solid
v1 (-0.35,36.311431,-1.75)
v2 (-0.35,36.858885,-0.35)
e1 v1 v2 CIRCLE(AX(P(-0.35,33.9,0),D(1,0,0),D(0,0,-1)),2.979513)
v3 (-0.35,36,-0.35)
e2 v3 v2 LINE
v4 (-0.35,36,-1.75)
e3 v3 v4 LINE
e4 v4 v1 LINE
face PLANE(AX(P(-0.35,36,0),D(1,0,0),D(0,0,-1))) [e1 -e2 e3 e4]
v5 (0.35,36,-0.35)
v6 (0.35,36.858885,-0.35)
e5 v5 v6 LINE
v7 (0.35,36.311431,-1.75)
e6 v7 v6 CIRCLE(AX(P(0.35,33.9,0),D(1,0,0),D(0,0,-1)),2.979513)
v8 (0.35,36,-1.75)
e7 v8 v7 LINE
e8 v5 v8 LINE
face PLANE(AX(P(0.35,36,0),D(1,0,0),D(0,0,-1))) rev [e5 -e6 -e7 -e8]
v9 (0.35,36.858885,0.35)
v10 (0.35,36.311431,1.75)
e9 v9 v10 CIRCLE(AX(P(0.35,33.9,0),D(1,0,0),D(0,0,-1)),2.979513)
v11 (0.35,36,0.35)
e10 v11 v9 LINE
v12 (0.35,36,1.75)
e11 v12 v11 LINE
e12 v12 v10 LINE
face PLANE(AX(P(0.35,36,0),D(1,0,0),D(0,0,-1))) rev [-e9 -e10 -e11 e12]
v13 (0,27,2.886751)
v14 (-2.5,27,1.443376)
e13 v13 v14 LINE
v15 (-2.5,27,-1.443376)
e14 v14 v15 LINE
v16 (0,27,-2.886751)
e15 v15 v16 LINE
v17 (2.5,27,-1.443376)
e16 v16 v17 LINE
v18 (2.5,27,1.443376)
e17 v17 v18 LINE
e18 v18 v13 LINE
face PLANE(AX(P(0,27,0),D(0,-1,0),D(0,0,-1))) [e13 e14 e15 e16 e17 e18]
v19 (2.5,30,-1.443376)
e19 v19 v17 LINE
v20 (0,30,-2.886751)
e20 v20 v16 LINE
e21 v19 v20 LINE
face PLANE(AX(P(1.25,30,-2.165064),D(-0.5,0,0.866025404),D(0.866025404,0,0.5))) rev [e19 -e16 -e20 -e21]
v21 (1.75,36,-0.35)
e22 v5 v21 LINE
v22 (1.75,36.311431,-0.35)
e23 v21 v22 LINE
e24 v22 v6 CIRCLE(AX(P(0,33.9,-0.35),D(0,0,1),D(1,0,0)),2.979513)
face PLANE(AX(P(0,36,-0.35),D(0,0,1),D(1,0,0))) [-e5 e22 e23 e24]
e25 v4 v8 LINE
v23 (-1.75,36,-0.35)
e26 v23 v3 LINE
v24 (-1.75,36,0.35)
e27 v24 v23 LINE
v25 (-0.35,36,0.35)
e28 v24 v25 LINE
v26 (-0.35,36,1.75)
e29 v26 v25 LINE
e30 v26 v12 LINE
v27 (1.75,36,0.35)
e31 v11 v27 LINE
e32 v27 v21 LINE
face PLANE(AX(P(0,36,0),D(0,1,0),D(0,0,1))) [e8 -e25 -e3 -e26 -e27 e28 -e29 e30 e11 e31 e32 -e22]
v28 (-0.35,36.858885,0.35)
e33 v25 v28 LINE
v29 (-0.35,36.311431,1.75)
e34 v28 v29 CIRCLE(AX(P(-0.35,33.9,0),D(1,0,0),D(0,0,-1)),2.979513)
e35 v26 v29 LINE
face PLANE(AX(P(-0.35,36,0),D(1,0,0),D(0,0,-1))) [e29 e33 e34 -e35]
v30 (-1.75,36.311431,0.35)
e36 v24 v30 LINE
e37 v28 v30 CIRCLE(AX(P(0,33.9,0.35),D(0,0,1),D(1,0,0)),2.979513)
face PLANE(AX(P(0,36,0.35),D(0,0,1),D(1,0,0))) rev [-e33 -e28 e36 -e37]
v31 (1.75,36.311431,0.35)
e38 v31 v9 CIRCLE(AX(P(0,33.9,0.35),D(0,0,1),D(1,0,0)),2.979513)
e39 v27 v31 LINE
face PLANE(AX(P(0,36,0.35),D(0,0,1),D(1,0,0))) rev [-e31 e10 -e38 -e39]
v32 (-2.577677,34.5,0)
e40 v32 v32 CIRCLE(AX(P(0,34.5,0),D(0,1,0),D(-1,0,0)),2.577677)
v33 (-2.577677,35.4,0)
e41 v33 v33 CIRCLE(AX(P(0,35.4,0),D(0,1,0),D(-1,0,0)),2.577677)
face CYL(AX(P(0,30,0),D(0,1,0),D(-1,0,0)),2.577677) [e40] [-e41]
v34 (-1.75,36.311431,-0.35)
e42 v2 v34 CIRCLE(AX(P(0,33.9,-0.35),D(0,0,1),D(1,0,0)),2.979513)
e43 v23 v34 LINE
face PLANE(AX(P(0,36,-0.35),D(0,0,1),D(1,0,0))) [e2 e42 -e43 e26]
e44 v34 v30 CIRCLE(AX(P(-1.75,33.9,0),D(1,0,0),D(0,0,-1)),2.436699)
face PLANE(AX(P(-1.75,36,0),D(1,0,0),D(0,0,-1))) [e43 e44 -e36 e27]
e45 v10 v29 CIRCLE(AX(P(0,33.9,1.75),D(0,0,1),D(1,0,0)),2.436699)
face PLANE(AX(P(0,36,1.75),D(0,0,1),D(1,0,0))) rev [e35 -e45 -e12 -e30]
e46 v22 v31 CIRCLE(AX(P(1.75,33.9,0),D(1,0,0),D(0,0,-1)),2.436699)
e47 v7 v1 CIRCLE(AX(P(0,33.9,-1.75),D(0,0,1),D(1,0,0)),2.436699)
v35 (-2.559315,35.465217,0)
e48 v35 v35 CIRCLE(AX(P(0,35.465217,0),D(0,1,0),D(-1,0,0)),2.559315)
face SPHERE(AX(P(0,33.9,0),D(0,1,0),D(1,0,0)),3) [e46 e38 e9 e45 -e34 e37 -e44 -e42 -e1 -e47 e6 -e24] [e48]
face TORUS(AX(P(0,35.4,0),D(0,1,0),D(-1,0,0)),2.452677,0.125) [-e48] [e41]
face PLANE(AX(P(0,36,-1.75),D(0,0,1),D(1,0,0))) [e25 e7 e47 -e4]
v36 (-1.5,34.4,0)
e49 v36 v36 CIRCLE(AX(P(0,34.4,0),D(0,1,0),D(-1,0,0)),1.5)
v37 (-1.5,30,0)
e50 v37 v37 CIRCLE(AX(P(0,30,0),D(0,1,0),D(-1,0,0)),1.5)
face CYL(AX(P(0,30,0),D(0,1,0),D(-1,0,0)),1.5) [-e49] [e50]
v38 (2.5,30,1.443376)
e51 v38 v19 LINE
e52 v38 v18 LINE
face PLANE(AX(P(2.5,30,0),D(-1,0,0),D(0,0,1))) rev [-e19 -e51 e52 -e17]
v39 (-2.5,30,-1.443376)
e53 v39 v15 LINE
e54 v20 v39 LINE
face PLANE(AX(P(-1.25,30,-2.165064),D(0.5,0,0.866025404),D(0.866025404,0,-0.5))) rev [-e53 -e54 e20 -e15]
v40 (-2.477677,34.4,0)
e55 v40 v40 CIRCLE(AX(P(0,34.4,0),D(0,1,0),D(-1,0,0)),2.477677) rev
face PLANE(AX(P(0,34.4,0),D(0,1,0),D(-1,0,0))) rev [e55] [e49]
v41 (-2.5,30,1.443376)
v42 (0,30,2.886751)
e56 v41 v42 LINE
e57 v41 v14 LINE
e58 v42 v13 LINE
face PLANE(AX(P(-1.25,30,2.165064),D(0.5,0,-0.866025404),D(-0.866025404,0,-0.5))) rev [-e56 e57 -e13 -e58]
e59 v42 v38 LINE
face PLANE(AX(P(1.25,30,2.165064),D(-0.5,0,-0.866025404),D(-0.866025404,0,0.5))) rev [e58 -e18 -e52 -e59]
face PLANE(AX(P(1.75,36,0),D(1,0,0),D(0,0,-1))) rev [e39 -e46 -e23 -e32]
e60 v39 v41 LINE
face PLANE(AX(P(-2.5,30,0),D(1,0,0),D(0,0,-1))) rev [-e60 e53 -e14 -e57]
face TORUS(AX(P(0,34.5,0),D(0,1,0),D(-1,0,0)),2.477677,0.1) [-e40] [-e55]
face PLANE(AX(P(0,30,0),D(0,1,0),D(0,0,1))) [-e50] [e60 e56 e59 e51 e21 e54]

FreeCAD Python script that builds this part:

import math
import FreeCAD as App
import Part
import Sketcher
from FreeCAD import Vector
Q = App.Units.Quantity


def edges_at(feature, points):
    """Names of the edges that pass closest to the given points."""
    edges = feature.Shape.Edges
    near = lambda p: min(range(len(edges)), key=lambda i: edges[i].distToShape(Part.Vertex(*p))[0])
    return sorted({f"Edge{near(p) + 1}" for p in points})

doc = App.newDocument("Part")
body = doc.addObject("PartDesign::Body", "Body")

# Sketch on XZ plane
sketch1 = doc.addObject("Sketcher::SketchObject", "Sketch")
body.addObject(sketch1)
sketch1.AttachmentSupport = (doc.XZ_Plane, [""])
sketch1.MapMode = "FlatFace"
sketch1.addGeometry(Part.LineSegment(Vector(0, 2.9, 0), Vector(2.5, 1.4, 0)), False)
sketch1.addGeometry(Part.LineSegment(Vector(2.5, 1.4, 0), Vector(2.5, -1.4, 0)), False)
sketch1.addGeometry(Part.LineSegment(Vector(2.5, -1.4, 0), Vector(0, -2.9, 0)), False)
sketch1.addGeometry(Part.LineSegment(Vector(0, -2.9, 0), Vector(-2.5, -1.4, 0)), False)
sketch1.addGeometry(Part.LineSegment(Vector(-2.5, -1.4, 0), Vector(-2.5, 1.4, 0)), False)
sketch1.addGeometry(Part.LineSegment(Vector(-2.5, 1.4, 0), Vector(0, 2.9, 0)), False)
sketch1.addConstraint(Sketcher.Constraint("Coincident", 0, 2, 1, 1))
sketch1.addConstraint(Sketcher.Constraint("Coincident", 1, 2, 2, 1))
sketch1.addConstraint(Sketcher.Constraint("Coincident", 2, 2, 3, 1))
sketch1.addConstraint(Sketcher.Constraint("Coincident", 3, 2, 4, 1))
sketch1.addConstraint(Sketcher.Constraint("Coincident", 4, 2, 5, 1))
sketch1.addConstraint(Sketcher.Constraint("Coincident", 5, 2, 0, 1))
sketch1.addConstraint(Sketcher.Constraint("Vertical", 1))
sketch1.addConstraint(Sketcher.Constraint("Vertical", 4))
sketch1.addConstraint(Sketcher.Constraint("Symmetric", 0, 2, 3, 2, -1, 1))
sketch1.addConstraint(Sketcher.Constraint("Symmetric", 2, 2, 5, 2, -1, 1))
sketch1.addConstraint(Sketcher.Constraint("PointOnObject", 2, 2, -2))
sketch1.addConstraint(Sketcher.Constraint("Parallel", 2, 5))
sketch1.addConstraint(Sketcher.Constraint("Horizontal", 1, 2, 3, 2))
sketch1.addConstraint(Sketcher.Constraint("Angle", 0, Q("-30 deg")))
sketch1.addConstraint(Sketcher.Constraint("DistanceX", 3, 2, 1, 2, Q("5 mm")))
sketch1.addConstraint(Sketcher.Constraint("DistanceY", 1, 2, 1, 1, Q("2.886751 mm")))
pad1 = doc.addObject("PartDesign::Pad", "Pad")
body.addObject(pad1)
pad1.Profile = sketch1
pad1.Length = 30
pad1.Reversed = True

# Sketch on XZ plane
sketch2 = doc.addObject("Sketcher::SketchObject", "Sketch001")
body.addObject(sketch2)
sketch2.AttachmentSupport = (doc.XZ_Plane, [""])
sketch2.MapMode = "FlatFace"
sketch2.addGeometry(Part.Circle(Vector(0, 0, 0), Vector(0, 0, 1), 1.5), False)
sketch2.addConstraint(Sketcher.Constraint("Coincident", 0, 3, -1, 1))
sketch2.addConstraint(Sketcher.Constraint("Diameter", 0, Q("3 mm")))
pad2 = doc.addObject("PartDesign::Pad", "Pad001")
body.addObject(pad2)
pad2.Profile = sketch2
pad2.Length = 6

# Sketch on XY plane
sketch3 = doc.addObject("Sketcher::SketchObject", "Sketch002")
body.addObject(sketch3)
sketch3.AttachmentSupport = (doc.XY_Plane, [""])
sketch3.MapMode = "FlatFace"
sketch3.addGeometry(Part.LineSegment(Vector(0, 36.9, 0), Vector(0, 30, 0)), False)
sketch3.addGeometry(Part.LineSegment(Vector(0, 30, 0), Vector(1.5, 30, 0)), False)
sketch3.addGeometry(Part.LineSegment(Vector(1.5, 30, 0), Vector(1.5, 34.4, 0)), False)
sketch3.addGeometry(Part.LineSegment(Vector(1.5, 34.4, 0), Vector(2.58, 34.4, 0)), False)
sketch3.addGeometry(Part.LineSegment(Vector(2.58, 34.4, 0), Vector(2.58, 35.4, 0)), False)
sketch3.addGeometry(Part.ArcOfCircle(Part.Circle(Vector(2.45, 35.4, 0), Vector(0, 0, 1), 0.13), math.radians(0), math.radians(31)), False)
sketch3.addGeometry(Part.ArcOfCircle(Part.Circle(Vector(0, 33.9, 0), Vector(0, 0, 1), 3), math.radians(31), math.radians(90)), False)
sketch3.addConstraint(Sketcher.Constraint("Coincident", 0, 2, 1, 1))
sketch3.addConstraint(Sketcher.Constraint("Coincident", 1, 2, 2, 1))
sketch3.addConstraint(Sketcher.Constraint("Coincident", 2, 2, 3, 1))
sketch3.addConstraint(Sketcher.Constraint("Coincident", 3, 2, 4, 1))
sketch3.addConstraint(Sketcher.Constraint("Tangent", 4, 2, 5, 1))
sketch3.addConstraint(Sketcher.Constraint("Tangent", 5, 2, 6, 1))
sketch3.addConstraint(Sketcher.Constraint("Coincident", 6, 2, 0, 1))
sketch3.addConstraint(Sketcher.Constraint("Vertical", 0))
sketch3.addConstraint(Sketcher.Constraint("Horizontal", 1))
sketch3.addConstraint(Sketcher.Constraint("Vertical", 2))
sketch3.addConstraint(Sketcher.Constraint("Horizontal", 3))
sketch3.addConstraint(Sketcher.Constraint("Vertical", 4))
sketch3.addConstraint(Sketcher.Constraint("PointOnObject", 6, 3, -2))
sketch3.addConstraint(Sketcher.Constraint("PointOnObject", 0, 2, -2))
sketch3.addConstraint(Sketcher.Constraint("Radius", 6, Q("3 mm")))
sketch3.addConstraint(Sketcher.Constraint("DistanceY", 4, 1, 4, 2, Q("1 mm")))
sketch3.addConstraint(Sketcher.Constraint("DistanceX", 1, 1, 1, 2, Q("1.5 mm")))
sketch3.addConstraint(Sketcher.Constraint("DistanceY", 0, 2, 0, 1, Q("6.9 mm")))
sketch3.addConstraint(Sketcher.Constraint("DistanceY", 2, 1, 2, 2, Q("4.4 mm")))
sketch3.addConstraint(Sketcher.Constraint("DistanceY", -1, 1, 0, 2, Q("30 mm")))
sketch3.addConstraint(Sketcher.Constraint("Radius", 5, Q("0.125 mm")))
revolution = doc.addObject("PartDesign::Revolution", "Revolution")
body.addObject(revolution)
revolution.Profile = sketch3
revolution.ReferenceAxis = (sketch3, ["V_Axis"])
revolution.Angle = 360

# Sketch on XZ plane
sketch4 = doc.addObject("Sketcher::SketchObject", "Sketch003")
body.addObject(sketch4)
sketch4.AttachmentSupport = (doc.XZ_Plane, [""])
sketch4.MapMode = "FlatFace"
sketch4.AttachmentOffset = App.Placement(Vector(0, 0, -40), App.Rotation())
sketch4.addGeometry(Part.LineSegment(Vector(-0.3, 0.3, 0), Vector(-0.3, 1.8, 0)), False)
sketch4.addGeometry(Part.LineSegment(Vector(-0.3, 1.8, 0), Vector(0.3, 1.8, 0)), False)
sketch4.addGeometry(Part.LineSegment(Vector(0.3, 1.8, 0), Vector(0.3, 0.3, 0)), False)
sketch4.addGeometry(Part.LineSegment(Vector(0.3, 0.3, 0), Vector(1.8, 0.3, 0)), False)
sketch4.addGeometry(Part.LineSegment(Vector(1.8, 0.3, 0), Vector(1.8, -0.3, 0)), False)
sketch4.addGeometry(Part.LineSegment(Vector(1.8, -0.3, 0), Vector(0.3, -0.3, 0)), False)
sketch4.addGeometry(Part.LineSegment(Vector(0.3, -0.3, 0), Vector(0.3, -1.8, 0)), False)
sketch4.addGeometry(Part.LineSegment(Vector(0.3, -1.8, 0), Vector(-0.3, -1.8, 0)), False)
sketch4.addGeometry(Part.LineSegment(Vector(-0.3, -1.8, 0), Vector(-0.3, -0.3, 0)), False)
sketch4.addGeometry(Part.LineSegment(Vector(-0.3, -0.3, 0), Vector(-1.8, -0.3, 0)), False)
sketch4.addGeometry(Part.LineSegment(Vector(-1.8, -0.3, 0), Vector(-1.8, 0.3, 0)), False)
sketch4.addGeometry(Part.LineSegment(Vector(-1.8, 0.3, 0), Vector(-0.3, 0.3, 0)), False)
sketch4.addConstraint(Sketcher.Constraint("Coincident", 0, 2, 1, 1))
sketch4.addConstraint(Sketcher.Constraint("Coincident", 1, 2, 2, 1))
sketch4.addConstraint(Sketcher.Constraint("Coincident", 2, 2, 3, 1))
sketch4.addConstraint(Sketcher.Constraint("Coincident", 3, 2, 4, 1))
sketch4.addConstraint(Sketcher.Constraint("Coincident", 4, 2, 5, 1))
sketch4.addConstraint(Sketcher.Constraint("Coincident", 5, 2, 6, 1))
sketch4.addConstraint(Sketcher.Constraint("Coincident", 6, 2, 7, 1))
sketch4.addConstraint(Sketcher.Constraint("Coincident", 7, 2, 8, 1))
sketch4.addConstraint(Sketcher.Constraint("Coincident", 8, 2, 9, 1))
sketch4.addConstraint(Sketcher.Constraint("Coincident", 9, 2, 10, 1))
sketch4.addConstraint(Sketcher.Constraint("Coincident", 10, 2, 11, 1))
sketch4.addConstraint(Sketcher.Constraint("Coincident", 11, 2, 0, 1))
sketch4.addConstraint(Sketcher.Constraint("Vertical", 0))
sketch4.addConstraint(Sketcher.Constraint("Horizontal", 1))
sketch4.addConstraint(Sketcher.Constraint("Vertical", 2))
sketch4.addConstraint(Sketcher.Constraint("Horizontal", 3))
sketch4.addConstraint(Sketcher.Constraint("Vertical", 4))
sketch4.addConstraint(Sketcher.Constraint("Horizontal", 5))
sketch4.addConstraint(Sketcher.Constraint("Vertical", 6))
sketch4.addConstraint(Sketcher.Constraint("Horizontal", 7))
sketch4.addConstraint(Sketcher.Constraint("Vertical", 8))
sketch4.addConstraint(Sketcher.Constraint("Horizontal", 9))
sketch4.addConstraint(Sketcher.Constraint("Vertical", 10))
sketch4.addConstraint(Sketcher.Constraint("Horizontal", 11))
sketch4.addConstraint(Sketcher.Constraint("Symmetric", 0, 2, 6, 2, -1, 1))
sketch4.addConstraint(Sketcher.Constraint("Symmetric", 2, 2, 8, 2, -1, 1))
sketch4.addConstraint(Sketcher.Constraint("Symmetric", 4, 2, 10, 2, -1, 1))
sketch4.addConstraint(Sketcher.Constraint("Symmetric", 5, 2, 8, 2, -2))
sketch4.addConstraint(Sketcher.Constraint("Equal", 11, 0))
sketch4.addConstraint(Sketcher.Constraint("Equal", 7, 4))
sketch4.addConstraint(Sketcher.Constraint("DistanceX", 1, 1, 1, 2, Q("0.7 mm")))
sketch4.addConstraint(Sketcher.Constraint("DistanceX", 3, 1, 3, 2, Q("1.4 mm")))
pocket1 = doc.addObject("PartDesign::Pocket", "Pocket")
body.addObject(pocket1)
pocket1.Profile = sketch4
pocket1.Length = 4
pocket1.Reversed = True
doc.recompute()

fillet = doc.addObject("PartDesign::Fillet", "Fillet")
body.addObject(fillet)
fillet.Base = (pocket1, edges_at(pocket1, [(2.578, 34.4, 0)]))
fillet.Radius = 0.1
body2 = doc.addObject("PartDesign::Body", "Body001")

# Sketch on XZ plane
sketch5 = doc.addObject("Sketcher::SketchObject", "Sketch004")
body2.addObject(sketch5)
sketch5.AttachmentSupport = (doc.getObject("XZ_Plane001"), [""])
sketch5.MapMode = "FlatFace"
sketch5.AttachmentOffset = App.Placement(Vector(0, 0, 6), App.Rotation())
sketch5.addGeometry(Part.LineSegment(Vector(2.5, 1.4, 0), Vector(0, 2.9, 0)), False)
sketch5.addGeometry(Part.LineSegment(Vector(0, 2.9, 0), Vector(-2.5, 1.4, 0)), False)
sketch5.addGeometry(Part.LineSegment(Vector(-2.5, 1.4, 0), Vector(-2.5, -1.4, 0)), False)
sketch5.addGeometry(Part.LineSegment(Vector(-2.5, -1.4, 0), Vector(0, -2.9, 0)), False)
sketch5.addGeometry(Part.LineSegment(Vector(0, -2.9, 0), Vector(2.5, -1.4, 0)), False)
sketch5.addGeometry(Part.LineSegment(Vector(2.5, -1.4, 0), Vector(2.5, 1.4, 0)), False)
sketch5.addGeometry(Part.Circle(Vector(0, 0, 0), Vector(0, 0, 1), 1.5), False)
sketch5.addConstraint(Sketcher.Constraint("Coincident", 0, 2, 1, 1))
sketch5.addConstraint(Sketcher.Constraint("Coincident", 1, 2, 2, 1))
sketch5.addConstraint(Sketcher.Constraint("Coincident", 2, 2, 3, 1))
sketch5.addConstraint(Sketcher.Constraint("Coincident", 3, 2, 4, 1))
sketch5.addConstraint(Sketcher.Constraint("Coincident", 4, 2, 5, 1))
sketch5.addConstraint(Sketcher.Constraint("Coincident", 5, 2, 0, 1))
sketch5.addConstraint(Sketcher.Constraint("Vertical", 2))
sketch5.addConstraint(Sketcher.Constraint("Vertical", 5))
sketch5.addConstraint(Sketcher.Constraint("Coincident", 6, 3, -1, 1))
sketch5.addConstraint(Sketcher.Constraint("Symmetric", 0, 2, 3, 2, -1, 1))
sketch5.addConstraint(Sketcher.Constraint("Symmetric", 1, 2, 4, 2, -1, 1))
sketch5.addConstraint(Sketcher.Constraint("PointOnObject", 0, 2, -2))
sketch5.addConstraint(Sketcher.Constraint("Parallel", 0, 3))
sketch5.addConstraint(Sketcher.Constraint("Horizontal", 2, 2, 4, 2))
sketch5.addConstraint(Sketcher.Constraint("Diameter", 6, Q("3 mm")))
sketch5.addConstraint(Sketcher.Constraint("Angle", 0, Q("150 deg")))
sketch5.addConstraint(Sketcher.Constraint("DistanceX", 2, 2, 4, 2, Q("5 mm")))
sketch5.addConstraint(Sketcher.Constraint("DistanceY", 2, 2, 2, 1, Q("2.886751 mm")))
pad3 = doc.addObject("PartDesign::Pad", "Pad002")
body2.addObject(pad3)
pad3.Profile = sketch5
pad3.Length = 3
pad3.Reversed = True
body3 = doc.addObject("PartDesign::Body", "Body002")

# Sketch on XZ plane
sketch6 = doc.addObject("Sketcher::SketchObject", "Sketch005")
body3.addObject(sketch6)
sketch6.AttachmentSupport = (doc.getObject("XZ_Plane002"), [""])
sketch6.MapMode = "FlatFace"
sketch6.AttachmentOffset = App.Placement(Vector(0, 0, 6), App.Rotation())
sketch6.addGeometry(Part.Circle(Vector(0, 0, 0), Vector(0, 0, 1), 4.5), False)
sketch6.addConstraint(Sketcher.Constraint("Coincident", 0, 3, -1, 1))
sketch6.addConstraint(Sketcher.Constraint("Diameter", 0, Q("9.070338 mm")))
pad4 = doc.addObject("PartDesign::Pad", "Pad003")
body3.addObject(pad4)
pad4.Profile = sketch6
pad4.Length = 33
pad4.Reversed = True
doc.recompute()

body4 = doc.addObject("PartDesign::Body", "Body003")
body4.BaseFeature = body3
boolean = doc.addObject("PartDesign::Boolean", "Boolean")
body.addObject(boolean)
boolean.Type = "Cut"
boolean.addObjects([body4])
doc.recompute()

boolean2 = doc.addObject("PartDesign::Boolean", "Boolean001")
body2.addObject(boolean2)
boolean2.Type = "Cut"
boolean2.addObjects([body3])

doc.recompute()
